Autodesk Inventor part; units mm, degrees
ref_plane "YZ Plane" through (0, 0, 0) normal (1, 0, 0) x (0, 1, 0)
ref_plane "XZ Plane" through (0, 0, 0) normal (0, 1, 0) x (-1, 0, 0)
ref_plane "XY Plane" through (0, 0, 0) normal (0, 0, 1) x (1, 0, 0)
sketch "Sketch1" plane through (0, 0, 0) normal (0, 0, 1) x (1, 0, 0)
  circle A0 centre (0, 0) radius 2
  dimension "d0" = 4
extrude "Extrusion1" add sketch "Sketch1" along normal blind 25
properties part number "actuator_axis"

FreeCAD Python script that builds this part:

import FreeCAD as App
import Part
import Sketcher

V = App.Vector

doc = App.newDocument("Part")
params = doc.addObject("Spreadsheet::Sheet", "Params")
for row, (alias, value) in enumerate([
    ("sketch1_diameter", "4 mm"),
    ("pad1_length", "25 mm"),
], start=1):
    params.set(f"A{row}", alias)
    params.set(f"B{row}", "=" + value)
    params.setAlias(f"B{row}", alias)

body = doc.addObject("PartDesign::Body", "Body")

# Sketch on XY plane
sketch1 = body.newObject("Sketcher::SketchObject", "Sketch")
sketch1.AttachmentSupport = (doc.getObject("XY_Plane"), [""])
sketch1.MapMode = "FlatFace"
sketch1.addGeometry(Part.Circle(V(0, 0, 0), V(0, 0, 1), 2), False)
sketch1.addConstraint([
    Sketcher.Constraint("Coincident", 0, 3, -1, 1),
    Sketcher.Constraint("Diameter", 0, 4.0),
])
sketch1.setExpression("Constraints[1]", "Params.sketch1_diameter")
pad1 = body.newObject("PartDesign::Pad", "Pad")
pad1.Profile = sketch1
pad1.setExpression("Length", "Params.pad1_length")

doc.recompute()
